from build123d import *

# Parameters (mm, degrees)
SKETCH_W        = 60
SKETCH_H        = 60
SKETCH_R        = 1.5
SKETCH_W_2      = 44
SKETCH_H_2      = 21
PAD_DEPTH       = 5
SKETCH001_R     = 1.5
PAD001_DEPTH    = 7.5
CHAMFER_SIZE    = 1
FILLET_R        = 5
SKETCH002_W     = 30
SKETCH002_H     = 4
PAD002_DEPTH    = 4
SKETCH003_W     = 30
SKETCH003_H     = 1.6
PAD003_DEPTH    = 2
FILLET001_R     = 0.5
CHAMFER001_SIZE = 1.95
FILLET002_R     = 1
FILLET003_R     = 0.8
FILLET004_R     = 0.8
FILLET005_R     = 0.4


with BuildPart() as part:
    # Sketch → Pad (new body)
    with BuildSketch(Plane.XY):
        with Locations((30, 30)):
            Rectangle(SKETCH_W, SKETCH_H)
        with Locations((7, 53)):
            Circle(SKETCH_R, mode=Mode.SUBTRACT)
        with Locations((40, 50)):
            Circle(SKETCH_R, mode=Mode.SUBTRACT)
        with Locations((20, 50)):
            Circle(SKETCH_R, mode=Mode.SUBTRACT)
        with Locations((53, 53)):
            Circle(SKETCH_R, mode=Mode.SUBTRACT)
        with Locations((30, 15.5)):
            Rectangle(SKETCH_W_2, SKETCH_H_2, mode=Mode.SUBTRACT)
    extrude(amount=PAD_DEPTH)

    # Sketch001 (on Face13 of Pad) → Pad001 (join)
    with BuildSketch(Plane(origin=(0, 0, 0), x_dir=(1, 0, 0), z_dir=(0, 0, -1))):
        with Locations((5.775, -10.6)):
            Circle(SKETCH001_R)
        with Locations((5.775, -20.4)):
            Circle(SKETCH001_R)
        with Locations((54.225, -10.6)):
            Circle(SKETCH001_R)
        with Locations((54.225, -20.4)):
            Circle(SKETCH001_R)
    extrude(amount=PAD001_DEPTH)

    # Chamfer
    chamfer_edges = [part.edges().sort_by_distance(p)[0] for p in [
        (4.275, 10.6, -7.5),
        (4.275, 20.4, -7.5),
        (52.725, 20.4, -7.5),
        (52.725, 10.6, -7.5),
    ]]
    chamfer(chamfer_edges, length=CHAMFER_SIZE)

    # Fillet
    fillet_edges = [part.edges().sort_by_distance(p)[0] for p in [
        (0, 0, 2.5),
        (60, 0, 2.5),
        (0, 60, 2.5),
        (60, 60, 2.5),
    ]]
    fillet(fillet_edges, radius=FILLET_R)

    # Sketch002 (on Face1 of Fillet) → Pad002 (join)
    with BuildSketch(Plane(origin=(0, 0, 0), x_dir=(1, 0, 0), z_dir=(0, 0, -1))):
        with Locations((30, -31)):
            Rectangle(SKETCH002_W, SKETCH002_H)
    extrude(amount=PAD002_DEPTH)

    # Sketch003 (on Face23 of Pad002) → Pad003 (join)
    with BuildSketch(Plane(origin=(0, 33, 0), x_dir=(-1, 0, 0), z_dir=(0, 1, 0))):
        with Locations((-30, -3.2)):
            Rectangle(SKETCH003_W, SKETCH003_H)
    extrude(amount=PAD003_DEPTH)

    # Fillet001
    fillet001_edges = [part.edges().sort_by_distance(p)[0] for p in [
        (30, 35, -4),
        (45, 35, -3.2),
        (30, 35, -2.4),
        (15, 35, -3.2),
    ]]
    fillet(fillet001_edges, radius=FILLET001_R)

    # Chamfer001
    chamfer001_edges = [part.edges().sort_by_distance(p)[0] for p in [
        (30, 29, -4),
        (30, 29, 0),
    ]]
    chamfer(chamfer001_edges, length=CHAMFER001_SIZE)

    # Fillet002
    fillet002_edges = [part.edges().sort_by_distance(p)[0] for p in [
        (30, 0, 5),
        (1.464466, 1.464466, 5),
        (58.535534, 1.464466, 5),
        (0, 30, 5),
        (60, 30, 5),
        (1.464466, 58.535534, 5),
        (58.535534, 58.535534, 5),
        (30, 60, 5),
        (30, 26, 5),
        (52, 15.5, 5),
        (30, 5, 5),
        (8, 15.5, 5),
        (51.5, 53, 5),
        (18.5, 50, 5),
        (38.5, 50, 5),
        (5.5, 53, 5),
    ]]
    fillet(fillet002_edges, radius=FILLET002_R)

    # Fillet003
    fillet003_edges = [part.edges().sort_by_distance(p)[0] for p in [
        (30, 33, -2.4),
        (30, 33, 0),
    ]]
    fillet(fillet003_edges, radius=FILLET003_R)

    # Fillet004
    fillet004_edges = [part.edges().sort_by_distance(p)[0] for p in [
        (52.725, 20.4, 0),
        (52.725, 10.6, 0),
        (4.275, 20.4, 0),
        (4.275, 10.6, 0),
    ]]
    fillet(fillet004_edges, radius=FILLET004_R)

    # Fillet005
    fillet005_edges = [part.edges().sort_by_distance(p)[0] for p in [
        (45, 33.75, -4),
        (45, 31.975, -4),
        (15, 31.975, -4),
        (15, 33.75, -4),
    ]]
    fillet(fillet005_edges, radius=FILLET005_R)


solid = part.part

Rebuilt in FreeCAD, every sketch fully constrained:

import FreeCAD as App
import Part
import Sketcher

V = App.Vector
Q = App.Units.Quantity


def edges_at(feature, points):
    """Names of the edges that pass closest to the given points."""
    edges = feature.Shape.Edges
    near = lambda p: min(range(len(edges)), key=lambda i: edges[i].distToShape(Part.Vertex(*p))[0])
    return sorted({f"Edge{near(p) + 1}" for p in points})


def add_polygon(sketch, points):
    """Adds a closed chain of lines whose ends are joined by coincident constraints."""
    first, n = sketch.GeometryCount, len(points)
    for a, b in zip(points, points[1:] + points[:1]):
        sketch.addGeometry(Part.LineSegment(App.Vector(*a, 0), App.Vector(*b, 0)), False)
    for i in range(n):
        sketch.addConstraint(Sketcher.Constraint("Coincident", first + i, 2, first + (i + 1) % n, 1))

doc = App.newDocument("Part")
body = doc.addObject("PartDesign::Body", "Body")

# Sketch on XY plane
sketch1 = body.newObject("Sketcher::SketchObject", "Sketch")
sketch1.AttachmentSupport = (doc.getObject("XY_Plane"), [""])
sketch1.MapMode = "FlatFace"
add_polygon(sketch1, [(0, 60), (0, 0), (60, 0), (60, 60)])  # lines 0-3
add_polygon(sketch1, [(52, 5), (8, 5), (8, 26), (52, 26)])  # lines 4-7
sketch1.addGeometry(Part.Circle(V(7, 53, 0), V(0, 0, 1), 1.5), False)  # 8
sketch1.addGeometry(Part.Circle(V(20, 50, 0), V(0, 0, 1), 1.5), False)  # 9
sketch1.addGeometry(Part.Circle(V(40, 50, 0), V(0, 0, 1), 1.5), False)  # 10
sketch1.addGeometry(Part.Circle(V(53, 53, 0), V(0, 0, 1), 1.5), False)  # 11
sketch1.addConstraint([
    Sketcher.Constraint("Vertical", 0),
    Sketcher.Constraint("Horizontal", 1),
    Sketcher.Constraint("Vertical", 2),
    Sketcher.Constraint("Horizontal", 3),
    Sketcher.Constraint("Horizontal", 4),
    Sketcher.Constraint("Vertical", 5),
    Sketcher.Constraint("Horizontal", 6),
    Sketcher.Constraint("Vertical", 7),
    Sketcher.Constraint("Coincident", 0, 2, -1, 1),
    Sketcher.Constraint("Equal", 8, 9),
    Sketcher.Constraint("Equal", 9, 10),
    Sketcher.Constraint("Equal", 10, 11),
    Sketcher.Constraint("Horizontal", 9, 3, 10, 3),
    Sketcher.Constraint("Horizontal", 8, 3, 11, 3),
    Sketcher.Constraint("Equal", 3, 0),
    Sketcher.Constraint("Diameter", 8, Q("3 mm")),
    Sketcher.Constraint("DistanceX", 1, 1, 1, 2, Q("60 mm")),
    Sketcher.Constraint("DistanceX", 4, 2, 4, 1, Q("44 mm")),
    Sketcher.Constraint("DistanceY", 5, 1, 5, 2, Q("21 mm")),
    Sketcher.Constraint("DistanceX", -1, 1, 8, 3, Q("7 mm")),
    Sketcher.Constraint("DistanceY", -1, 1, 8, 3, Q("53 mm")),
    Sketcher.Constraint("DistanceX", -1, 1, 9, 3, Q("20 mm")),
    Sketcher.Constraint("DistanceY", -1, 1, 9, 3, Q("50 mm")),
    Sketcher.Constraint("DistanceX", -1, 1, 10, 3, Q("40 mm")),
    Sketcher.Constraint("DistanceX", -1, 1, 11, 3, Q("53 mm")),
    Sketcher.Constraint("DistanceX", -1, 1, 4, 2, Q("8 mm")),
    Sketcher.Constraint("DistanceY", -1, 1, 4, 2, Q("5 mm")),
])
pad1 = body.newObject("PartDesign::Pad", "Pad")
pad1.Profile = sketch1
pad1.Length = 5

# Sketch on XY plane
sketch2 = body.newObject("Sketcher::SketchObject", "Sketch001")
sketch2.AttachmentSupport = (doc.getObject("XY_Plane"), [""])
sketch2.MapMode = "FlatFace"
sketch2.addGeometry([
    Part.Circle(V(5.775, 10.6, 0), V(0, 0, 1), 1.5),
    Part.Circle(V(5.775, 20.4, 0), V(0, 0, 1), 1.5),
    Part.Circle(V(54.225, 10.6, 0), V(0, 0, 1), 1.5),
    Part.Circle(V(54.225, 20.4, 0), V(0, 0, 1), 1.5),
], False)
sketch2.addConstraint([
    Sketcher.Constraint("Equal", 0, 1),
    Sketcher.Constraint("Equal", 1, 2),
    Sketcher.Constraint("Equal", 2, 3),
    Sketcher.Constraint("Horizontal", 0, 3, 2, 3),
    Sketcher.Constraint("Horizontal", 1, 3, 3, 3),
    Sketcher.Constraint("Vertical", 0, 3, 1, 3),
    Sketcher.Constraint("Vertical", 2, 3, 3, 3),
    Sketcher.Constraint("Diameter", 0, Q("3 mm")),
    Sketcher.Constraint("DistanceY", -1, 1, 0, 3, Q("10.6 mm")),
    Sketcher.Constraint("DistanceY", -1, 1, 1, 3, Q("20.4 mm")),
    Sketcher.Constraint("DistanceX", 0, 3, 2, 3, Q("48.45 mm")),
    Sketcher.Constraint("DistanceX", -1, 1, 0, 3, Q("5.775 mm")),
])
pad2 = body.newObject("PartDesign::Pad", "Pad001")
pad2.Profile = sketch2
pad2.Length = 7.5
pad2.Reversed = True
doc.recompute()

chamfer = body.newObject("PartDesign::Chamfer", "Chamfer")
chamfer.Base = (pad2, edges_at(pad2, [
    (4.275, 10.6, -7.5),
    (4.275, 20.4, -7.5),
    (52.725, 20.4, -7.5),
    (52.725, 10.6, -7.5),
]))
chamfer.Size = 1
doc.recompute()

fillet = body.newObject("PartDesign::Fillet", "Fillet")
fillet.Base = (chamfer, edges_at(chamfer, [
    (0, 0, 2.5),
    (60, 0, 2.5),
    (0, 60, 2.5),
    (60, 60, 2.5),
]))
fillet.Radius = 5

# Sketch on XY plane
sketch3 = body.newObject("Sketcher::SketchObject", "Sketch002")
sketch3.AttachmentSupport = (doc.getObject("XY_Plane"), [""])
sketch3.MapMode = "FlatFace"
add_polygon(sketch3, [(15, 29), (15, 33), (45, 33), (45, 29)])  # lines 0-3
sketch3.addConstraint([
    Sketcher.Constraint("Vertical", 0),
    Sketcher.Constraint("Horizontal", 1),
    Sketcher.Constraint("Vertical", 2),
    Sketcher.Constraint("Horizontal", 3),
    Sketcher.Constraint("DistanceX", 1, 1, 1, 2, Q("30 mm")),
    Sketcher.Constraint("DistanceY", 0, 1, 0, 2, Q("4 mm")),
    Sketcher.Constraint("DistanceX", -1, 1, 0, 2, Q("15 mm")),
    Sketcher.Constraint("DistanceY", -1, 1, 0, 2, Q("33 mm")),
])
pad3 = body.newObject("PartDesign::Pad", "Pad002")
pad3.Profile = sketch3
pad3.Length = 4
pad3.Reversed = True

# Sketch on XZ plane
sketch4 = body.newObject("Sketcher::SketchObject", "Sketch003")
sketch4.AttachmentSupport = (doc.getObject("XZ_Plane"), [""])
sketch4.MapMode = "FlatFace"
sketch4.AttachmentOffset = App.Placement(V(0, 0, -33), App.Rotation())
add_polygon(sketch4, [(45, -2.4), (45, -4), (15, -4), (15, -2.4)])  # lines 0-3
sketch4.addConstraint([
    Sketcher.Constraint("Vertical", 0),
    Sketcher.Constraint("Horizontal", 1),
    Sketcher.Constraint("Vertical", 2),
    Sketcher.Constraint("Horizontal", 3),
    Sketcher.Constraint("DistanceX", 1, 2, 1, 1, Q("30 mm")),
    Sketcher.Constraint("DistanceY", 0, 2, 0, 1, Q("1.6 mm")),
    Sketcher.Constraint("DistanceX", -1, 1, 0, 2, Q("45 mm")),
    Sketcher.Constraint("DistanceY", 0, 2, -1, 1, Q("4 mm")),
])
pad4 = body.newObject("PartDesign::Pad", "Pad003")
pad4.Profile = sketch4
pad4.Length = 2
pad4.Reversed = True
doc.recompute()

fillet2 = body.newObject("PartDesign::Fillet", "Fillet001")
fillet2.Base = (pad4, edges_at(pad4, [
    (30, 35, -4),
    (45, 35, -3.2),
    (30, 35, -2.4),
    (15, 35, -3.2),
]))
fillet2.Radius = 0.5
doc.recompute()

chamfer2 = body.newObject("PartDesign::Chamfer", "Chamfer001")
chamfer2.Base = (fillet2, edges_at(fillet2, [(30, 29, -4), (30, 29, 0)]))
chamfer2.Size = 1.95
doc.recompute()

fillet3 = body.newObject("PartDesign::Fillet", "Fillet002")
fillet3.Base = (chamfer2, edges_at(chamfer2, [
    (30, 0, 5),
    (1.464, 1.464, 5),
    (58.536, 1.464, 5),
    (0, 30, 5),
    (60, 30, 5),
    (1.464, 58.536, 5),
    (58.536, 58.536, 5),
    (30, 60, 5),
    (30, 26, 5),
    (52, 15.5, 5),
    (30, 5, 5),
    (8, 15.5, 5),
    (51.5, 53, 5),
    (18.5, 50, 5),
    (38.5, 50, 5),
    (5.5, 53, 5),
]))
fillet3.Radius = 1
doc.recompute()

fillet4 = body.newObject("PartDesign::Fillet", "Fillet003")
fillet4.Base = (fillet3, edges_at(fillet3, [(30, 33, -2.4), (30, 33, 0)]))
fillet4.Radius = 0.8
doc.recompute()

fillet5 = body.newObject("PartDesign::Fillet", "Fillet004")
fillet5.Base = (fillet4, edges_at(fillet4, [
    (52.725, 20.4, 0),
    (52.725, 10.6, 0),
    (4.275, 20.4, 0),
    (4.275, 10.6, 0),
]))
fillet5.Radius = 0.8
doc.recompute()

fillet6 = body.newObject("PartDesign::Fillet", "Fillet005")
fillet6.Base = (fillet5, edges_at(fillet5, [
    (45, 32.725, -4),
    (45, 32.725, -4),
    (15, 32.725, -4),
    (15, 32.725, -4),
]))
fillet6.Radius = 0.4

doc.recompute()
